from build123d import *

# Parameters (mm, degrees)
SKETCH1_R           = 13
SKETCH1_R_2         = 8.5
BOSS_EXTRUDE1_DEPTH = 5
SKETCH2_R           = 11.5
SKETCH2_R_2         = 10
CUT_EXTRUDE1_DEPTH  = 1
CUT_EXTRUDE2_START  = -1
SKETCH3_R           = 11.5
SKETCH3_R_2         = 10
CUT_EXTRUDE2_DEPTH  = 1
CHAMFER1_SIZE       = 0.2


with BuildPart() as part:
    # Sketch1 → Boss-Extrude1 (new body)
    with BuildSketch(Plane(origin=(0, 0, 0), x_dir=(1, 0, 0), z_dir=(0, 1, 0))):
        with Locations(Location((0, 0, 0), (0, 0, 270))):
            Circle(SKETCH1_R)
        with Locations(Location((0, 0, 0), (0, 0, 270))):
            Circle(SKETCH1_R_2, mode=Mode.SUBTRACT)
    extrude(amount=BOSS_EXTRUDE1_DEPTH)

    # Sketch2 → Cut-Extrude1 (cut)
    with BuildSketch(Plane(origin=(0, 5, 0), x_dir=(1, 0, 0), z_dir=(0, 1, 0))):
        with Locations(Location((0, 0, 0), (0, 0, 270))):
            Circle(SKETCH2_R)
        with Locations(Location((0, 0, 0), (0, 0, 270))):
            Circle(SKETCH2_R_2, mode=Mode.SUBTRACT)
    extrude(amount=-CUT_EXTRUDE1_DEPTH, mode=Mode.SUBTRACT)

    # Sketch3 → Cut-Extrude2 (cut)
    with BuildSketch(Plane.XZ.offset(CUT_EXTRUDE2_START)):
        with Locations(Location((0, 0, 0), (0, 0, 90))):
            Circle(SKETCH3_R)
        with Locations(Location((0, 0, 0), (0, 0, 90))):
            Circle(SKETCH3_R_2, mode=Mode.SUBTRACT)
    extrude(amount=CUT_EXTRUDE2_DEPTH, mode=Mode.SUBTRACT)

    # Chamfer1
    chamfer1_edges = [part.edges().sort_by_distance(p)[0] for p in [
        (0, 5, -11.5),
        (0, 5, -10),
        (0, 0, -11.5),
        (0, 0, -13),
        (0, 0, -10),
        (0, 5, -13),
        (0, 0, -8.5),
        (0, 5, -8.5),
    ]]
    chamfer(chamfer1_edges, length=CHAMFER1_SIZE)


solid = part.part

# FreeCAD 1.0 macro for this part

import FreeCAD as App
import Part
import Sketcher
Q = App.Units.Quantity


def edges_at(feature, points):
    """Names of the edges that pass closest to the given points."""
    edges = feature.Shape.Edges
    near = lambda p: min(range(len(edges)), key=lambda i: edges[i].distToShape(Part.Vertex(*p))[0])
    return sorted({f"Edge{near(p) + 1}" for p in points})

doc = App.newDocument("Part")
body = doc.addObject("PartDesign::Body", "Body")

# Sketch on XZ plane
sketch1 = body.newObject("Sketcher::SketchObject", "Sketch")
sketch1.AttachmentSupport = (doc.getObject("XZ_Plane"), [""])
sketch1.MapMode = "FlatFace"
sketch1.addGeometry(Part.Circle(App.Vector(0, 0, 0), App.Vector(0, 0, 1), 13), False)
sketch1.addGeometry(Part.Circle(App.Vector(0, 0, 0), App.Vector(0, 0, 1), 8.5), False)
sketch1.addConstraint(Sketcher.Constraint("Coincident", 0, 3, -1, 1))
sketch1.addConstraint(Sketcher.Constraint("Coincident", 1, 3, -1, 1))
sketch1.addConstraint(Sketcher.Constraint("Diameter", 0, Q("26 mm")))
sketch1.addConstraint(Sketcher.Constraint("Diameter", 1, Q("17 mm")))
pad1 = body.newObject("PartDesign::Pad", "Pad")
pad1.Profile = sketch1
pad1.Length = 5
pad1.Reversed = True

# Sketch on XZ plane
sketch2 = body.newObject("Sketcher::SketchObject", "Sketch001")
sketch2.AttachmentSupport = (doc.getObject("XZ_Plane"), [""])
sketch2.MapMode = "FlatFace"
sketch2.AttachmentOffset = App.Placement(App.Vector(0, 0, -5), App.Rotation())
sketch2.addGeometry(Part.Circle(App.Vector(0, 0, 0), App.Vector(0, 0, 1), 11.5), False)
sketch2.addGeometry(Part.Circle(App.Vector(0, 0, 0), App.Vector(0, 0, 1), 10), False)
sketch2.addConstraint(Sketcher.Constraint("Coincident", 0, 3, -1, 1))
sketch2.addConstraint(Sketcher.Constraint("Coincident", 1, 3, -1, 1))
sketch2.addConstraint(Sketcher.Constraint("Diameter", 0, Q("23 mm")))
sketch2.addConstraint(Sketcher.Constraint("Diameter", 1, Q("20 mm")))
pocket1 = body.newObject("PartDesign::Pocket", "Pocket")
pocket1.Profile = sketch2
pocket1.Length = 1
pocket1.Reversed = True

# Sketch on XZ plane
sketch3 = body.newObject("Sketcher::SketchObject", "Sketch002")
sketch3.AttachmentSupport = (doc.getObject("XZ_Plane"), [""])
sketch3.MapMode = "FlatFace"
sketch3.AttachmentOffset = App.Placement(App.Vector(0, 0, -1), App.Rotation())
sketch3.addGeometry(Part.Circle(App.Vector(0, 0, 0), App.Vector(0, 0, 1), 11.5), False)
sketch3.addGeometry(Part.Circle(App.Vector(0, 0, 0), App.Vector(0, 0, 1), 10), False)
sketch3.addConstraint(Sketcher.Constraint("Coincident", 0, 3, -1, 1))
sketch3.addConstraint(Sketcher.Constraint("Coincident", 1, 3, -1, 1))
sketch3.addConstraint(Sketcher.Constraint("Diameter", 0, Q("23 mm")))
sketch3.addConstraint(Sketcher.Constraint("Diameter", 1, Q("20 mm")))
pocket2 = body.newObject("PartDesign::Pocket", "Pocket001")
pocket2.Profile = sketch3
pocket2.Length = 1
pocket2.Reversed = True
doc.recompute()

chamfer = body.newObject("PartDesign::Chamfer", "Chamfer")
chamfer.Base = (pocket2, edges_at(pocket2, [
    (0, 5, -11.5),
    (0, 5, -10),
    (0, 0, -11.5),
    (0, 0, -13),
    (0, 0, -10),
    (0, 5, -13),
    (0, 0, -8.5),
    (0, 5, -8.5),
]))
chamfer.Size = 0.2

doc.recompute()
